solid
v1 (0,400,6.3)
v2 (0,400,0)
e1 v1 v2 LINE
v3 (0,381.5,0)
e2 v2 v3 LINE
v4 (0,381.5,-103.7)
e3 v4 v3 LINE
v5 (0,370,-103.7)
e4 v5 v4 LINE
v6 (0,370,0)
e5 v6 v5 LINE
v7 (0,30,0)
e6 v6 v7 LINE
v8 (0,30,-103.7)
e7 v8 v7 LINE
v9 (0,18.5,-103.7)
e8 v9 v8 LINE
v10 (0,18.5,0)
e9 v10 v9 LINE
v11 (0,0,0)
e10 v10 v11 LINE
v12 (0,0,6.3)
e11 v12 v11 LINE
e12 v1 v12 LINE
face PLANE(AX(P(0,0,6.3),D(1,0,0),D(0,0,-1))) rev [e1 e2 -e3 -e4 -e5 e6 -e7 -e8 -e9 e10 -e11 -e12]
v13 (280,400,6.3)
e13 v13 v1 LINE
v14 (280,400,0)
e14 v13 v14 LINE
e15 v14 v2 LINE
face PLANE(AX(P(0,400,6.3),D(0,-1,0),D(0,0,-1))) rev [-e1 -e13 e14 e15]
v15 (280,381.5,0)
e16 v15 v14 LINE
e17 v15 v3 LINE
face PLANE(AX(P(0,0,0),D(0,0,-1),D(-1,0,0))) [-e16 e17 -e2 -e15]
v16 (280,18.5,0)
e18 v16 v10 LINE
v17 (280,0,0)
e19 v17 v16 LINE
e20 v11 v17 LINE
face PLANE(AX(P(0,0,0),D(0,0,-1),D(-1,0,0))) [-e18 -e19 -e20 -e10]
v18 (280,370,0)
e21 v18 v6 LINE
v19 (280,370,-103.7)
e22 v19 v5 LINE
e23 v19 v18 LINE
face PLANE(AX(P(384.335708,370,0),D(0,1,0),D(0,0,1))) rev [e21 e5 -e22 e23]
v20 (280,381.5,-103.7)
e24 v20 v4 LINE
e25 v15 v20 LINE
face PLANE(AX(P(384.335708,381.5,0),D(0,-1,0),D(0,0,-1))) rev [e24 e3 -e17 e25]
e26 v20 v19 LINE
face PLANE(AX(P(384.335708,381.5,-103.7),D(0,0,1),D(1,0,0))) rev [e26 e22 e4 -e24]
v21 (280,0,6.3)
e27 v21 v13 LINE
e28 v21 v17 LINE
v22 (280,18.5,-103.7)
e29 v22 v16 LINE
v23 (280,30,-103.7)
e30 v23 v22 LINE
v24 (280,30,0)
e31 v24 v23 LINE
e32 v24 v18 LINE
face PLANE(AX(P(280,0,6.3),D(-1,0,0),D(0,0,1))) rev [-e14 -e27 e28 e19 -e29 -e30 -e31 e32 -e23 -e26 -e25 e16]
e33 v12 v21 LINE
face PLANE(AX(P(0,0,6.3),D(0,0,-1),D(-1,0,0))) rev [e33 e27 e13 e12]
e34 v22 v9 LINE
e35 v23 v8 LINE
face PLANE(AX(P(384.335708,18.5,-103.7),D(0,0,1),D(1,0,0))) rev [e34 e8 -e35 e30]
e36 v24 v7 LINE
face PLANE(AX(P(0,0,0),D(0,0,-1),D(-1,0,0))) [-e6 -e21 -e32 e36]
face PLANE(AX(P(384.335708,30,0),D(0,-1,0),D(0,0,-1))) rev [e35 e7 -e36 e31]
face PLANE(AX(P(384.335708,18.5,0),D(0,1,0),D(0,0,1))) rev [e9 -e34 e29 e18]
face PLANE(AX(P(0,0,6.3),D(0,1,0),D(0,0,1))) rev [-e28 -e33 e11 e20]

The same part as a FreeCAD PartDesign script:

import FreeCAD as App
import Part
import Sketcher
Q = App.Units.Quantity

doc = App.newDocument("Part")
body = doc.addObject("PartDesign::Body", "Body")

sketch1 = body.newObject("Sketcher::SketchObject", "Sketch")
sketch1.AttachmentSupport = (doc.getObject("XY_Plane"), [""])
sketch1.MapMode = "FlatFace"
sketch1.addGeometry([
    Part.LineSegment(App.Vector(0, 400, 0), App.Vector(0, 0, 0)),
    Part.LineSegment(App.Vector(0, 0, 0), App.Vector(280, 0, 0)),
    Part.LineSegment(App.Vector(280, 0, 0), App.Vector(280, 400, 0)),
    Part.LineSegment(App.Vector(280, 400, 0), App.Vector(0, 400, 0)),
], False)
sketch1.addConstraint([
    Sketcher.Constraint("Coincident", 0, 2, 1, 1),
    Sketcher.Constraint("Coincident", 1, 2, 2, 1),
    Sketcher.Constraint("Coincident", 2, 2, 3, 1),
    Sketcher.Constraint("Coincident", 3, 2, 0, 1),
    Sketcher.Constraint("Vertical", 0),
    Sketcher.Constraint("Horizontal", 1),
    Sketcher.Constraint("Vertical", 2),
    Sketcher.Constraint("Horizontal", 3),
    Sketcher.Constraint("Coincident", 0, 2, -1, 1),
    Sketcher.Constraint("DistanceX", 1, 1, 1, 2, Q("280 mm")),
    Sketcher.Constraint("DistanceY", 0, 2, 0, 1, Q("400 mm")),
])
pad1 = body.newObject("PartDesign::Pad", "Pad")
pad1.Profile = sketch1
pad1.Length = 6.3

sketch2 = body.newObject("Sketcher::SketchObject", "Sketch001")
sketch2.AttachmentSupport = (doc.getObject("YZ_Plane"), [""])
sketch2.MapMode = "FlatFace"
sketch2.addGeometry([
    Part.LineSegment(App.Vector(30, 0, 0), App.Vector(18, 0, 0)),
    Part.LineSegment(App.Vector(18, 0, 0), App.Vector(18, -104, 0)),
    Part.LineSegment(App.Vector(18, -104, 0), App.Vector(30, -104, 0)),
    Part.LineSegment(App.Vector(30, -104, 0), App.Vector(30, 0, 0)),
    Part.LineSegment(App.Vector(382, 0, 0), App.Vector(370, 0, 0)),
    Part.LineSegment(App.Vector(370, 0, 0), App.Vector(370, -104, 0)),
    Part.LineSegment(App.Vector(370, -104, 0), App.Vector(382, -104, 0)),
    Part.LineSegment(App.Vector(382, -104, 0), App.Vector(382, 0, 0)),
], False)
sketch2.addConstraint([
    Sketcher.Constraint("Coincident", 0, 2, 1, 1),
    Sketcher.Constraint("Coincident", 1, 2, 2, 1),
    Sketcher.Constraint("Coincident", 2, 2, 3, 1),
    Sketcher.Constraint("Coincident", 3, 2, 0, 1),
    Sketcher.Constraint("Coincident", 4, 2, 5, 1),
    Sketcher.Constraint("Coincident", 5, 2, 6, 1),
    Sketcher.Constraint("Coincident", 6, 2, 7, 1),
    Sketcher.Constraint("Coincident", 7, 2, 4, 1),
    Sketcher.Constraint("Horizontal", 0),
    Sketcher.Constraint("Vertical", 1),
    Sketcher.Constraint("Horizontal", 2),
    Sketcher.Constraint("Vertical", 3),
    Sketcher.Constraint("Horizontal", 4),
    Sketcher.Constraint("Vertical", 5),
    Sketcher.Constraint("Horizontal", 6),
    Sketcher.Constraint("Vertical", 7),
    Sketcher.Constraint("PointOnObject", 0, 2, -1),
    Sketcher.Constraint("PointOnObject", 4, 2, -1),
    Sketcher.Constraint("Horizontal", 2, 2, 5, 2),
    Sketcher.Constraint("Equal", 2, 4),
    Sketcher.Constraint("DistanceX", 0, 2, 0, 1, Q("11.5 mm")),
    Sketcher.Constraint("DistanceY", 1, 2, 1, 1, Q("103.7 mm")),
    Sketcher.Constraint("DistanceX", -1, 1, 2, 2, Q("30 mm")),
    Sketcher.Constraint("DistanceX", -1, 1, 4, 2, Q("370 mm")),
])
pad2 = body.newObject("PartDesign::Pad", "Pad001")
pad2.Profile = sketch2
pad2.Length = 280

doc.recompute()
